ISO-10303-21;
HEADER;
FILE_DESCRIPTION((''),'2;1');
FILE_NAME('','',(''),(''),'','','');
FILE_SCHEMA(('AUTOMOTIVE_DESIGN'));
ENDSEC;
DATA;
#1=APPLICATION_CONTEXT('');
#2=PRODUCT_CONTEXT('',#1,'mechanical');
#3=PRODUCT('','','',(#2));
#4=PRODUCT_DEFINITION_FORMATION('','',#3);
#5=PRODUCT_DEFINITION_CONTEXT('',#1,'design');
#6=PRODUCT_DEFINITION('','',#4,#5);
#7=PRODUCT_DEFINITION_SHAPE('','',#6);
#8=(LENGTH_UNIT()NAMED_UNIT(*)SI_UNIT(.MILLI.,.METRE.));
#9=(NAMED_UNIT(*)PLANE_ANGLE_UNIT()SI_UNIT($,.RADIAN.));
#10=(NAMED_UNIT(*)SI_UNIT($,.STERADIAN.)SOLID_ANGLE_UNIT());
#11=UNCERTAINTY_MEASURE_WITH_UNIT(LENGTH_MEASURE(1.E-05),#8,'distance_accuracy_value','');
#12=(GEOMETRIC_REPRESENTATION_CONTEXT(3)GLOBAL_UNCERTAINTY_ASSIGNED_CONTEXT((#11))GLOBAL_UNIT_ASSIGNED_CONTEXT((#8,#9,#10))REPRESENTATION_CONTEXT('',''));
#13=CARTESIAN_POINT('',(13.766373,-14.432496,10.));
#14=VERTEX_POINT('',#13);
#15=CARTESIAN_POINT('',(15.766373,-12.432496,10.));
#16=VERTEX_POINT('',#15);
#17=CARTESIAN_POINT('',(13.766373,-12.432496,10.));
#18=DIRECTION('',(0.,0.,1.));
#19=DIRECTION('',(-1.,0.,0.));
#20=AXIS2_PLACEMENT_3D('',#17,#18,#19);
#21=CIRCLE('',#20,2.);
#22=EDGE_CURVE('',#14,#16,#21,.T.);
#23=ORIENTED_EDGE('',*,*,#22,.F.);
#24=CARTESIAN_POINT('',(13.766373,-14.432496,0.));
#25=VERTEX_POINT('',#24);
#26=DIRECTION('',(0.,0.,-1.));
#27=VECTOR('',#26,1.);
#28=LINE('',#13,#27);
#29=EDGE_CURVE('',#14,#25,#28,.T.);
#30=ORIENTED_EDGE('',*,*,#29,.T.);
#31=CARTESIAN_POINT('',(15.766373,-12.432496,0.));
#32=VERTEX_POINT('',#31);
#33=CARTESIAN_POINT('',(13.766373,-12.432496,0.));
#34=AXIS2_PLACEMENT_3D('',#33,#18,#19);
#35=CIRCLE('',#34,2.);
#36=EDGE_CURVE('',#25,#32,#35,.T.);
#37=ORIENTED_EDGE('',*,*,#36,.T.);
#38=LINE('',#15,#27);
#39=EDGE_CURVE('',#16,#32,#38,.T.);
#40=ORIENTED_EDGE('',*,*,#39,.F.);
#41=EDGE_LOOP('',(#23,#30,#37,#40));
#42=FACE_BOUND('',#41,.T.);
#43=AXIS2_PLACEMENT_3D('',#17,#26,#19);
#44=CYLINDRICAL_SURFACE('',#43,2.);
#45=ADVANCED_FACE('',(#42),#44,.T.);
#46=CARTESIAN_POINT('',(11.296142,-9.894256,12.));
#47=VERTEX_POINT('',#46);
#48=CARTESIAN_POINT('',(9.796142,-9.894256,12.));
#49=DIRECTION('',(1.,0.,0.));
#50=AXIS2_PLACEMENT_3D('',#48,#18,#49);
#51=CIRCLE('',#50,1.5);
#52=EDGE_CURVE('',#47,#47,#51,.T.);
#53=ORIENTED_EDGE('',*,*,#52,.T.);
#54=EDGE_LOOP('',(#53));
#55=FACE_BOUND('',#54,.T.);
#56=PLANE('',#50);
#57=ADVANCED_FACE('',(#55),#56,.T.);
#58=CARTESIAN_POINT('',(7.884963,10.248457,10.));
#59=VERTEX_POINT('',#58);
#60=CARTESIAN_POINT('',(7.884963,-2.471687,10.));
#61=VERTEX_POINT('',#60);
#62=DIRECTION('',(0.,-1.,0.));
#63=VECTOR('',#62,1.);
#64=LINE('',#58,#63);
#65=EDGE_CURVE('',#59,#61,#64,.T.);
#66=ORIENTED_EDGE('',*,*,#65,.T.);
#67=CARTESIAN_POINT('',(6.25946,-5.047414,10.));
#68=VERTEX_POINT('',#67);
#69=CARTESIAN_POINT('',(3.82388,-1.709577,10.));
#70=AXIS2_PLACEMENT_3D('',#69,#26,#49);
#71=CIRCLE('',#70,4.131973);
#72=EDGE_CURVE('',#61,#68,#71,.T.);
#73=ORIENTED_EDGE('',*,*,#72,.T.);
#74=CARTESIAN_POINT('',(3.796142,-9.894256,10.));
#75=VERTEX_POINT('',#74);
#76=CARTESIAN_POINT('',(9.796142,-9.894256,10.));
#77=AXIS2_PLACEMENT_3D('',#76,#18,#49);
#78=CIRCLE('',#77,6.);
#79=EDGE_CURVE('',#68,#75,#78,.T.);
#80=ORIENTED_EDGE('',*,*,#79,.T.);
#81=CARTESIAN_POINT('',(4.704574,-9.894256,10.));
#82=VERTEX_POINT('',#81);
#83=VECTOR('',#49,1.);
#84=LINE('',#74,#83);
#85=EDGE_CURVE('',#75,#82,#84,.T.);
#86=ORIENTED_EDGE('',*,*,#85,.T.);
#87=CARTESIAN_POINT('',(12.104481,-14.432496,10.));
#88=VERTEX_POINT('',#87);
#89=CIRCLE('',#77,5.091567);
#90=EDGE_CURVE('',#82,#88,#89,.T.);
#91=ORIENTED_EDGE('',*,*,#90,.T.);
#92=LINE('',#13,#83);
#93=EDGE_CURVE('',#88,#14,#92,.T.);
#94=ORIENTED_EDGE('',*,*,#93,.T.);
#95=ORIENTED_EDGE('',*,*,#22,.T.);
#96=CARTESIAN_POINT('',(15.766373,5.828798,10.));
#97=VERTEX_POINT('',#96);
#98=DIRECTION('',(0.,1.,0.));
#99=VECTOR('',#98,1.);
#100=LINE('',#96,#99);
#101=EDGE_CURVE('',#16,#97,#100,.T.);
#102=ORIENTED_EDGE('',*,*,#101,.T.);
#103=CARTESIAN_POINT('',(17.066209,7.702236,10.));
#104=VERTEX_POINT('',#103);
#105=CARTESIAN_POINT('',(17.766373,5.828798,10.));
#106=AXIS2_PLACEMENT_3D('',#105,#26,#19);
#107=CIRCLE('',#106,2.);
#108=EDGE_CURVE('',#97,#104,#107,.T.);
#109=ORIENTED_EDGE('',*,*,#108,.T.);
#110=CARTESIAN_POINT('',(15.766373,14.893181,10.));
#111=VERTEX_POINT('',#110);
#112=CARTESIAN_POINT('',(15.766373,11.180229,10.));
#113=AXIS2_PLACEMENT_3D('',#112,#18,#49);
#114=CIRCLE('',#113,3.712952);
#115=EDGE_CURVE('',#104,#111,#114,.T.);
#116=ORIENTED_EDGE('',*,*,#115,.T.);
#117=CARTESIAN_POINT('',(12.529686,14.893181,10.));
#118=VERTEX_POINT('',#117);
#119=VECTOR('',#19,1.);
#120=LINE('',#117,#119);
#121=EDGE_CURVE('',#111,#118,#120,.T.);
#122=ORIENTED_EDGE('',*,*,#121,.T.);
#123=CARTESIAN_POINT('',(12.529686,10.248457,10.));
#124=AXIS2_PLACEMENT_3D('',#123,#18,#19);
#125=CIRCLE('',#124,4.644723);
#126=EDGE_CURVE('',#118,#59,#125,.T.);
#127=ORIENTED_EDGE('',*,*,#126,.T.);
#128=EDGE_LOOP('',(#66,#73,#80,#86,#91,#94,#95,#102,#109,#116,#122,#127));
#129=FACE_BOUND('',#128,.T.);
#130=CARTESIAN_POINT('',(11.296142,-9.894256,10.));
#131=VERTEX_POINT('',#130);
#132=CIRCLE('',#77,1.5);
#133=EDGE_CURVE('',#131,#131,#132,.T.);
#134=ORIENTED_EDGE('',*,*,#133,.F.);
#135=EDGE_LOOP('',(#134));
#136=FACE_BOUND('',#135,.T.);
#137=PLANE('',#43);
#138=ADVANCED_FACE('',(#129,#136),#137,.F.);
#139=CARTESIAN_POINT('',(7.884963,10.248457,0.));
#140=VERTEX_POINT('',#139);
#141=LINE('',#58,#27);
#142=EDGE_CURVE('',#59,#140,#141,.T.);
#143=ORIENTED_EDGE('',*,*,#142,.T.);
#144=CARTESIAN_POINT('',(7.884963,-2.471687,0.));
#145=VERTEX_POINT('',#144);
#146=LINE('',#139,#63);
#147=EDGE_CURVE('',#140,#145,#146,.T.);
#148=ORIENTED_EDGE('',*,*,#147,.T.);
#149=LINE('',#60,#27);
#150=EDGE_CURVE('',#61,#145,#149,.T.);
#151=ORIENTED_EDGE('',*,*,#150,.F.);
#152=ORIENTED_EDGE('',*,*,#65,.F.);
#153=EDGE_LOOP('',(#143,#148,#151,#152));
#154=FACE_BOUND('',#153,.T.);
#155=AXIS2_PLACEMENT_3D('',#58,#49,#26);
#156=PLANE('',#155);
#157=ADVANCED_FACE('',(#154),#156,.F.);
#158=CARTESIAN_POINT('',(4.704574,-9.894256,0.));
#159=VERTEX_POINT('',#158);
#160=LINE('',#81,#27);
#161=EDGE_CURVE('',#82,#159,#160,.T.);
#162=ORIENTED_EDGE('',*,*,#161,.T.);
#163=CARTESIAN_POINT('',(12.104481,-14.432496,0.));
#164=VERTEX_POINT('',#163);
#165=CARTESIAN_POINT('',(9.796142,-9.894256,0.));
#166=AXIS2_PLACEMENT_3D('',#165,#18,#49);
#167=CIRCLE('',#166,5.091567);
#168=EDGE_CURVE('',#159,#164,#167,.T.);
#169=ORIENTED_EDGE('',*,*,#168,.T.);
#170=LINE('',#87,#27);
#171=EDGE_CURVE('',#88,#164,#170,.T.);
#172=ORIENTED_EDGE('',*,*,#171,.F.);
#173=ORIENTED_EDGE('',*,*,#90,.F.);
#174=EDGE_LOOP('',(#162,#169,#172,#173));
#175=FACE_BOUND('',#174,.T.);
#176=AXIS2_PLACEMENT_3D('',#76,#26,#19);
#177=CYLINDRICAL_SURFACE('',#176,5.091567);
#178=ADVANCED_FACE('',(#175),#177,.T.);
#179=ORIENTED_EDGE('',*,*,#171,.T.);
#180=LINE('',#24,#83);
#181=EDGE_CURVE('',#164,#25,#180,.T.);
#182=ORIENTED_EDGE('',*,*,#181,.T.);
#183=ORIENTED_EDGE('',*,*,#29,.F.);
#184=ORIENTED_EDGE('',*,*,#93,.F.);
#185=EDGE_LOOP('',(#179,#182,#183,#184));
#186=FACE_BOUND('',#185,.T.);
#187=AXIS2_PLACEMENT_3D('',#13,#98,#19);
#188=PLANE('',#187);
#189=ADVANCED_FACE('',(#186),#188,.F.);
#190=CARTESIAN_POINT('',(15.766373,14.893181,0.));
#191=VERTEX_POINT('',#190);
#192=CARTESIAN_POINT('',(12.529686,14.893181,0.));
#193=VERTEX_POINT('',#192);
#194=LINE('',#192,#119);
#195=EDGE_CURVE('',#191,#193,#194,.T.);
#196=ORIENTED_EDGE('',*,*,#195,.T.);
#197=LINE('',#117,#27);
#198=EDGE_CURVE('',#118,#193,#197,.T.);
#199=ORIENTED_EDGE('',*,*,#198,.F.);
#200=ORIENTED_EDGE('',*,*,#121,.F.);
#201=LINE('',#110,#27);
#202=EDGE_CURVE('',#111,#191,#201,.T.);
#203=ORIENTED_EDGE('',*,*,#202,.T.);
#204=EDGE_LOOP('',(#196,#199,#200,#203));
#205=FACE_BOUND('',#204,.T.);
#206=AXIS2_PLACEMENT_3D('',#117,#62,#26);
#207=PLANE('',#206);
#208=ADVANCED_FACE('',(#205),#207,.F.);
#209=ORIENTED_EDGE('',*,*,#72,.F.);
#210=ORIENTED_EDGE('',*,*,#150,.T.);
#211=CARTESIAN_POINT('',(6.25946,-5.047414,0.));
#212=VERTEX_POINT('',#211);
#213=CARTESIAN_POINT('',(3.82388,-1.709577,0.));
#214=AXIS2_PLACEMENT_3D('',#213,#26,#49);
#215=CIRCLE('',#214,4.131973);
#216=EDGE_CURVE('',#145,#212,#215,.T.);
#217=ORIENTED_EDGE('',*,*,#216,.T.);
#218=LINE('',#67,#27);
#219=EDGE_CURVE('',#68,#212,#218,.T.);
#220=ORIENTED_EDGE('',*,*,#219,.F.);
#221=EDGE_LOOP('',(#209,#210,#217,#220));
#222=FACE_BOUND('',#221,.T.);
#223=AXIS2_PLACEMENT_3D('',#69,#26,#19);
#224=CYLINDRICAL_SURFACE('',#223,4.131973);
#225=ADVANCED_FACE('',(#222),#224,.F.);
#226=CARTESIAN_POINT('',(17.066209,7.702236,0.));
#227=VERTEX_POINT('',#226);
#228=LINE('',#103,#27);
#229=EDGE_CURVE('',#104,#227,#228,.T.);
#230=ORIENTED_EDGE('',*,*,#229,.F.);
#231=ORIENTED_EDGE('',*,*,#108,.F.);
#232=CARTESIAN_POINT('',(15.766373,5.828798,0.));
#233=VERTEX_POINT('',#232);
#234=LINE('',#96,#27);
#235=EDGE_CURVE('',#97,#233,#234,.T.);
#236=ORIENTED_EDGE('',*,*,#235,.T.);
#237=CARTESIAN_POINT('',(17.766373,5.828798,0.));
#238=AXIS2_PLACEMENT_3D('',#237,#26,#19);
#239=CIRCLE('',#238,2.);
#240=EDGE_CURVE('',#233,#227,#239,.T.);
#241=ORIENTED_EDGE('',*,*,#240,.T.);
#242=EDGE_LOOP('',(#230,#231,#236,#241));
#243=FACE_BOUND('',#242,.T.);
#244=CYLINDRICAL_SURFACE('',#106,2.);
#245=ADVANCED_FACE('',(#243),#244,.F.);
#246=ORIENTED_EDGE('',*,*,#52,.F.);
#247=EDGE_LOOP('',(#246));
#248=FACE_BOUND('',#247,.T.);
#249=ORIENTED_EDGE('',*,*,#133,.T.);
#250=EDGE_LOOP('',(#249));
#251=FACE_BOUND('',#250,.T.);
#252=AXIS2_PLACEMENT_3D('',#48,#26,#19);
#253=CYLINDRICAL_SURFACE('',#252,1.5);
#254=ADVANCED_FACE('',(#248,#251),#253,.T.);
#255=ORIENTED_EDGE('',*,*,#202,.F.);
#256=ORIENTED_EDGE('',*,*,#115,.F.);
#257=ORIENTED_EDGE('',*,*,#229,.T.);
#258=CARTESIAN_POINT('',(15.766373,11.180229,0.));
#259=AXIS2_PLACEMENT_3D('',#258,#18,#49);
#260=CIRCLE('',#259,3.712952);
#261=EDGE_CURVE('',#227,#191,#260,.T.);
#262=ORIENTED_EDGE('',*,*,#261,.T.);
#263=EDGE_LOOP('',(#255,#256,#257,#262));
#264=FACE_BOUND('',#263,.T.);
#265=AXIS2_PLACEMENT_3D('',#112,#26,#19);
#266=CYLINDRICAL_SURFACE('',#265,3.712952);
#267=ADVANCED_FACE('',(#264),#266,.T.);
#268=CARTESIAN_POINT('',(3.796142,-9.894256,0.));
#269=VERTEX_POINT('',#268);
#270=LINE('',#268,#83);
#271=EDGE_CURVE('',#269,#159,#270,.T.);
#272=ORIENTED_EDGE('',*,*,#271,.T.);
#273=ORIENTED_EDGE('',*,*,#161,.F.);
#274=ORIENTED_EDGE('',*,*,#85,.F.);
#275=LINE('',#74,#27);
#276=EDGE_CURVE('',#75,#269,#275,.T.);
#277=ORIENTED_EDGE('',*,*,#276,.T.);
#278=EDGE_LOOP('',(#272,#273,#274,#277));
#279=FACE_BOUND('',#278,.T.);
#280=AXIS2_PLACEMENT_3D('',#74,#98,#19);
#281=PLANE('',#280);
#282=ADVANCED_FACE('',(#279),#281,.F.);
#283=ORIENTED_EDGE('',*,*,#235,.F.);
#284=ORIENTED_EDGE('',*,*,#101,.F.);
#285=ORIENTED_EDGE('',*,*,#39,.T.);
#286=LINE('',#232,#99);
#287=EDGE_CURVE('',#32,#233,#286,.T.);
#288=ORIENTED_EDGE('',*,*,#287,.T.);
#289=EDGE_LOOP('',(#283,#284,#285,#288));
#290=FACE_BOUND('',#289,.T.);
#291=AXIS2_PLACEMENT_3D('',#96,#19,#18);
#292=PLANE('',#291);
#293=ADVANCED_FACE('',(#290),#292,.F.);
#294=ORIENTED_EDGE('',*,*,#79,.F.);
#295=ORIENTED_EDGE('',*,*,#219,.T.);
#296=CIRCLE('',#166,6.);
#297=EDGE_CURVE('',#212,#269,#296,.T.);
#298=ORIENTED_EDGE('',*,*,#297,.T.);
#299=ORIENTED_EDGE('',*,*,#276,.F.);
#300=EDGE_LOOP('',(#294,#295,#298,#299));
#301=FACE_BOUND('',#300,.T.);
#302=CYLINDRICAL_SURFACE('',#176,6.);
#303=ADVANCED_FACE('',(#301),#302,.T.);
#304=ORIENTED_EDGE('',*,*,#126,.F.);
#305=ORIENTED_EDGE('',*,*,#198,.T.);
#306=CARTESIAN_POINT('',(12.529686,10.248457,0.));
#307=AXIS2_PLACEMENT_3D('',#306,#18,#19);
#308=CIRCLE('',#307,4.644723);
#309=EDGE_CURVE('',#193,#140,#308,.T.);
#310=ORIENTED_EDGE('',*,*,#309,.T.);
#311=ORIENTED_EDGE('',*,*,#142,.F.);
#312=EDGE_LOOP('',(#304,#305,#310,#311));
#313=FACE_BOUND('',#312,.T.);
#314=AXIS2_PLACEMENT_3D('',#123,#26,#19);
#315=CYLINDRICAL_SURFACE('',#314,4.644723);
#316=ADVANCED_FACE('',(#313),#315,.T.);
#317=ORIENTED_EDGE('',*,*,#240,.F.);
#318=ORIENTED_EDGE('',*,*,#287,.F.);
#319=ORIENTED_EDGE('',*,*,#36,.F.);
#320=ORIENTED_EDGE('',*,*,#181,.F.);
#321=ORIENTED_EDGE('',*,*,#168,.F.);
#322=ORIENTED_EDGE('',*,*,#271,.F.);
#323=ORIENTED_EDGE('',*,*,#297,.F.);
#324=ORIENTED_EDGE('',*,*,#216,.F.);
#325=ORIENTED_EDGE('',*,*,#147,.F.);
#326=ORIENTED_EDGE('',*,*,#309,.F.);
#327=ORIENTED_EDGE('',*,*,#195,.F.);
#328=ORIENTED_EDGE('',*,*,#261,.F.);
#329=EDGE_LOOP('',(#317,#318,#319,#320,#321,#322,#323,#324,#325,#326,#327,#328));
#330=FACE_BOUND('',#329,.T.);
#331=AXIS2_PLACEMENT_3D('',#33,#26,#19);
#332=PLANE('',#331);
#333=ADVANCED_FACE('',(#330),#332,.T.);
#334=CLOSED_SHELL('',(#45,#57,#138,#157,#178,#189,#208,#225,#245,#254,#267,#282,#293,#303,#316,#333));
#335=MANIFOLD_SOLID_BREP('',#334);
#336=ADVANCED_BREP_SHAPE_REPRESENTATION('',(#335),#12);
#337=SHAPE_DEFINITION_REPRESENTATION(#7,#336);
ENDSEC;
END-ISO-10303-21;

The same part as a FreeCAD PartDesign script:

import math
import FreeCAD as App
import Part
import Sketcher
from FreeCAD import Vector
Q = App.Units.Quantity

doc = App.newDocument("Part")
body = doc.addObject("PartDesign::Body", "Body")

# Sketch on XY plane
sketch1 = doc.addObject("Sketcher::SketchObject", "Sketch")
body.addObject(sketch1)
sketch1.AttachmentSupport = (doc.XY_Plane, [""])
sketch1.MapMode = "FlatFace"
sketch1.addGeometry(Part.LineSegment(Vector(7.9, 10.2, 0), Vector(7.9, -2.5, 0)), False)
sketch1.addGeometry(Part.ArcOfCircle(Part.Circle(Vector(3.8, -1.7, 0), Vector(0, 0, 1), 4.1), math.radians(-54), math.radians(-11)), False)
sketch1.addGeometry(Part.ArcOfCircle(Part.Circle(Vector(9.8, -9.9, 0), Vector(0, 0, 1), 6), math.radians(126), math.radians(180)), False)
sketch1.addGeometry(Part.LineSegment(Vector(3.8, -9.9, 0), Vector(4.7, -9.9, 0)), False)
sketch1.addGeometry(Part.ArcOfCircle(Part.Circle(Vector(9.8, -9.9, 0), Vector(0, 0, 1), 5.1), math.radians(-180), math.radians(-63)), False)
sketch1.addGeometry(Part.LineSegment(Vector(12.1, -14.4, 0), Vector(13.8, -14.4, 0)), False)
sketch1.addGeometry(Part.ArcOfCircle(Part.Circle(Vector(13.8, -12.4, 0), Vector(0, 0, 1), 2), math.radians(-90), math.radians(0)), False)
sketch1.addGeometry(Part.LineSegment(Vector(15.8, -12.4, 0), Vector(15.8, 5.8, 0)), False)
sketch1.addGeometry(Part.ArcOfCircle(Part.Circle(Vector(17.8, 5.8, 0), Vector(0, 0, 1), 2), math.radians(110), math.radians(180)), False)
sketch1.addGeometry(Part.ArcOfCircle(Part.Circle(Vector(15.8, 11.2, 0), Vector(0, 0, 1), 3.7), math.radians(-70), math.radians(90)), False)
sketch1.addGeometry(Part.LineSegment(Vector(15.8, 14.9, 0), Vector(12.5, 14.9, 0)), False)
sketch1.addGeometry(Part.ArcOfCircle(Part.Circle(Vector(12.5, 10.2, 0), Vector(0, 0, 1), 4.6), math.radians(90), math.radians(180)), False)
sketch1.addConstraint(Sketcher.Constraint("Coincident", 0, 2, 1, 2))
sketch1.addConstraint(Sketcher.Constraint("Tangent", 1, 1, 2, 1))
sketch1.addConstraint(Sketcher.Constraint("Coincident", 2, 2, 3, 1))
sketch1.addConstraint(Sketcher.Constraint("Coincident", 3, 2, 4, 1))
sketch1.addConstraint(Sketcher.Constraint("Coincident", 4, 2, 5, 1))
sketch1.addConstraint(Sketcher.Constraint("Tangent", 5, 2, 6, 1))
sketch1.addConstraint(Sketcher.Constraint("Tangent", 6, 2, 7, 1))
sketch1.addConstraint(Sketcher.Constraint("Tangent", 7, 2, 8, 2))
sketch1.addConstraint(Sketcher.Constraint("Tangent", 8, 1, 9, 1))
sketch1.addConstraint(Sketcher.Constraint("Tangent", 9, 2, 10, 1))
sketch1.addConstraint(Sketcher.Constraint("Tangent", 10, 2, 11, 1))
sketch1.addConstraint(Sketcher.Constraint("Tangent", 11, 2, 0, 1))
sketch1.addConstraint(Sketcher.Constraint("Vertical", 0))
sketch1.addConstraint(Sketcher.Constraint("Horizontal", 3))
sketch1.addConstraint(Sketcher.Constraint("Horizontal", 5))
sketch1.addConstraint(Sketcher.Constraint("Vertical", 7))
sketch1.addConstraint(Sketcher.Constraint("Horizontal", 10))
sketch1.addConstraint(Sketcher.Constraint("Coincident", 4, 3, 2, 3))
sketch1.addConstraint(Sketcher.Constraint("Equal", 6, 8))
sketch1.addConstraint(Sketcher.Constraint("Horizontal", 4, 3, 2, 2))
sketch1.addConstraint(Sketcher.Constraint("Vertical", 9, 3, 6, 2))
sketch1.addConstraint(Sketcher.Constraint("Radius", 2, Q("6 mm")))
sketch1.addConstraint(Sketcher.Constraint("Radius", 6, Q("2 mm")))
sketch1.addConstraint(Sketcher.Constraint("Radius", 9, Q("3.712952 mm")))
sketch1.addConstraint(Sketcher.Constraint("Radius", 1, Q("4.131973 mm")))
sketch1.addConstraint(Sketcher.Constraint("Radius", 4, Q("5.091567 mm")))
sketch1.addConstraint(Sketcher.Constraint("Radius", 11, Q("4.644723 mm")))
sketch1.addConstraint(Sketcher.Constraint("DistanceX", 5, 1, 5, 2, Q("1.661892 mm")))
sketch1.addConstraint(Sketcher.Constraint("DistanceX", 3, 2, 5, 2, Q("9.061798 mm")))
sketch1.addConstraint(Sketcher.Constraint("DistanceX", 10, 2, 10, 1, Q("3.236687 mm")))
sketch1.addConstraint(Sketcher.Constraint("DistanceY", 0, 2, 0, 1, Q("12.720145 mm")))
sketch1.addConstraint(Sketcher.Constraint("DistanceY", 7, 1, 7, 2, Q("18.261294 mm")))
sketch1.addConstraint(Sketcher.Constraint("DistanceX", -1, 1, 1, 3, Q("3.82388 mm")))
sketch1.addConstraint(Sketcher.Constraint("DistanceY", -1, 1, 9, 3, Q("11.180229 mm")))
pad1 = doc.addObject("PartDesign::Pad", "Pad")
body.addObject(pad1)
pad1.Profile = sketch1
pad1.Length = 10

# Sketch on XY plane
sketch2 = doc.addObject("Sketcher::SketchObject", "Sketch001")
body.addObject(sketch2)
sketch2.AttachmentSupport = (doc.XY_Plane, [""])
sketch2.MapMode = "FlatFace"
sketch2.AttachmentOffset = App.Placement(Vector(0, 0, 10), App.Rotation())
sketch2.addGeometry(Part.Circle(Vector(9.8, -9.9, 0), Vector(0, 0, 1), 1.5), False)
sketch2.addConstraint(Sketcher.Constraint("Diameter", 0, Q("3 mm")))
sketch2.addConstraint(Sketcher.Constraint("DistanceX", -1, 1, 0, 3, Q("9.796142 mm")))
sketch2.addConstraint(Sketcher.Constraint("DistanceY", 0, 3, -1, 1, Q("9.894256 mm")))
pad2 = doc.addObject("PartDesign::Pad", "Pad001")
body.addObject(pad2)
pad2.Profile = sketch2
pad2.Length = 2

doc.recompute()
